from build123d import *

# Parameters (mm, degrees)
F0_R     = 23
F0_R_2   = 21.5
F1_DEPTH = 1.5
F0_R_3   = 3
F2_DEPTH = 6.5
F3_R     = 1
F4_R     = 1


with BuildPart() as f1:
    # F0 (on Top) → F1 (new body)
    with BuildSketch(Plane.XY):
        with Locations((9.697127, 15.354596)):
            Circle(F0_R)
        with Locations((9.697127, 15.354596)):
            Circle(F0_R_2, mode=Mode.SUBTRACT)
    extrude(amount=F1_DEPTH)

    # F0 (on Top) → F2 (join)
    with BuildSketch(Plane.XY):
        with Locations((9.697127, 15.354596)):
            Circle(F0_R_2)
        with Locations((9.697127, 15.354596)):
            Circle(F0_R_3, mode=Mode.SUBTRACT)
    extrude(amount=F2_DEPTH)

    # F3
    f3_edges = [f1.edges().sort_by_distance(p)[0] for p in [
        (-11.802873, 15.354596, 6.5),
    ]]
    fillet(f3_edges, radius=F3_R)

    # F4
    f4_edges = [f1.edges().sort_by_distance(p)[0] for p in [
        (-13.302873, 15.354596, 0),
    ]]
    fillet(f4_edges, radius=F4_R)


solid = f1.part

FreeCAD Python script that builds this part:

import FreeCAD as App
import Part
import Sketcher
from FreeCAD import Vector


def edges_at(feature, points):
    """Names of the edges that pass closest to the given points."""
    edges = feature.Shape.Edges
    near = lambda p: min(range(len(edges)), key=lambda i: edges[i].distToShape(Part.Vertex(*p))[0])
    return sorted({f"Edge{near(p) + 1}" for p in points})

doc = App.newDocument("Part")
body = doc.addObject("PartDesign::Body", "Body")

sketch1 = body.newObject("Sketcher::SketchObject", "Sketch")
sketch1.AttachmentSupport = (doc.getObject("XY_Plane"), [""])
sketch1.MapMode = "FlatFace"
sketch1.addGeometry([
    Part.Circle(Vector(10, 15, 0), Vector(0, 0, 1), 23),
    Part.Circle(Vector(10, 15, 0), Vector(0, 0, 1), 22),
], False)
sketch1.addConstraint([
    Sketcher.Constraint("Coincident", 1, 3, 0, 3),
    Sketcher.Constraint("Diameter", 0, 46.0),
    Sketcher.Constraint("Diameter", 1, 43.0),
    Sketcher.Constraint("DistanceX", -1, 1, 0, 3, 9.697127),
    Sketcher.Constraint("DistanceY", -1, 1, 0, 3, 15.354596),
])
pad1 = body.newObject("PartDesign::Pad", "Pad")
pad1.Profile = sketch1
pad1.Length = 1.5

sketch2 = body.newObject("Sketcher::SketchObject", "Sketch001")
sketch2.AttachmentSupport = (doc.getObject("XY_Plane"), [""])
sketch2.MapMode = "FlatFace"
sketch2.addGeometry([
    Part.Circle(Vector(9.7, 15.4, 0), Vector(0, 0, 1), 21.5),
    Part.Circle(Vector(9.7, 15.4, 0), Vector(0, 0, 1), 3),
], False)
sketch2.addConstraint([
    Sketcher.Constraint("Coincident", 1, 3, 0, 3),
    Sketcher.Constraint("Diameter", 0, 43.0),
    Sketcher.Constraint("Diameter", 1, 6.0),
    Sketcher.Constraint("DistanceX", -1, 1, 0, 3, 9.697127),
    Sketcher.Constraint("DistanceY", -1, 1, 0, 3, 15.354596),
])
pad2 = body.newObject("PartDesign::Pad", "Pad001")
pad2.Profile = sketch2
pad2.Length = 6.5
doc.recompute()

fillet = body.newObject("PartDesign::Fillet", "Fillet")
fillet.Base = (pad2, edges_at(pad2, [(-11.803, 15.355, 6.5)]))
fillet.Radius = 1
doc.recompute()

fillet2 = body.newObject("PartDesign::Fillet", "Fillet001")
fillet2.Base = (fillet, edges_at(fillet, [(-13.303, 15.355, 0)]))
fillet2.Radius = 1

doc.recompute()
